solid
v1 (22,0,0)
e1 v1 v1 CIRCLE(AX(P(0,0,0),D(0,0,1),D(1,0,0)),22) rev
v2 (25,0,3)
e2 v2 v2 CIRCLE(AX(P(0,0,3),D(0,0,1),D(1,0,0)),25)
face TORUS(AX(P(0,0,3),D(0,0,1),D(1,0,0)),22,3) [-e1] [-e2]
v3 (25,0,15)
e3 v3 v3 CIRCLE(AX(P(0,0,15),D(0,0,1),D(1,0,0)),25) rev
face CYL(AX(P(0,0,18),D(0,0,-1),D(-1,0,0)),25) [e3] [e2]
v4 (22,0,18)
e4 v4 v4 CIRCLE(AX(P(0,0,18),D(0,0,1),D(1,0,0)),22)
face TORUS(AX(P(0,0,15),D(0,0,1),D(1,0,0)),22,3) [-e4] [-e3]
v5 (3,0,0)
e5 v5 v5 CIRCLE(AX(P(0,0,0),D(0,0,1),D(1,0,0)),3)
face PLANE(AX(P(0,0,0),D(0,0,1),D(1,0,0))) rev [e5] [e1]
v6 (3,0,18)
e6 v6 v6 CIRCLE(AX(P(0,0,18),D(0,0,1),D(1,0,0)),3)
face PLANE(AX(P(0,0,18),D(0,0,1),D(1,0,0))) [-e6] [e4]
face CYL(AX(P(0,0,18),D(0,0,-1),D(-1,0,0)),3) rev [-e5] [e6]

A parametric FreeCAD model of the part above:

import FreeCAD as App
import Part
import Sketcher
Q = App.Units.Quantity


def edges_at(feature, points):
    """Names of the edges that pass closest to the given points."""
    edges = feature.Shape.Edges
    near = lambda p: min(range(len(edges)), key=lambda i: edges[i].distToShape(Part.Vertex(*p))[0])
    return sorted({f"Edge{near(p) + 1}" for p in points})

doc = App.newDocument("Part")
body = doc.addObject("PartDesign::Body", "Body")

# Sketch on XY plane
sketch1 = body.newObject("Sketcher::SketchObject", "Sketch")
sketch1.AttachmentSupport = (doc.getObject("XY_Plane"), [""])
sketch1.MapMode = "FlatFace"
sketch1.addGeometry(Part.Circle(App.Vector(0, 0, 0), App.Vector(0, 0, 1), 25), False)
sketch1.addGeometry(Part.Circle(App.Vector(0, 0, 0), App.Vector(0, 0, 1), 3), False)
sketch1.addConstraint(Sketcher.Constraint("Coincident", 0, 3, -1, 1))
sketch1.addConstraint(Sketcher.Constraint("Coincident", 1, 3, -1, 1))
sketch1.addConstraint(Sketcher.Constraint("Diameter", 0, Q("50 mm")))
sketch1.addConstraint(Sketcher.Constraint("Diameter", 1, Q("6 mm")))
pad1 = body.newObject("PartDesign::Pad", "Pad")
pad1.Profile = sketch1
pad1.Length = 18
doc.recompute()

fillet = body.newObject("PartDesign::Fillet", "Fillet")
fillet.Base = (pad1, edges_at(pad1, [(-25, 0, 0), (-25, 0, 18)]))
fillet.Radius = 3

doc.recompute()
